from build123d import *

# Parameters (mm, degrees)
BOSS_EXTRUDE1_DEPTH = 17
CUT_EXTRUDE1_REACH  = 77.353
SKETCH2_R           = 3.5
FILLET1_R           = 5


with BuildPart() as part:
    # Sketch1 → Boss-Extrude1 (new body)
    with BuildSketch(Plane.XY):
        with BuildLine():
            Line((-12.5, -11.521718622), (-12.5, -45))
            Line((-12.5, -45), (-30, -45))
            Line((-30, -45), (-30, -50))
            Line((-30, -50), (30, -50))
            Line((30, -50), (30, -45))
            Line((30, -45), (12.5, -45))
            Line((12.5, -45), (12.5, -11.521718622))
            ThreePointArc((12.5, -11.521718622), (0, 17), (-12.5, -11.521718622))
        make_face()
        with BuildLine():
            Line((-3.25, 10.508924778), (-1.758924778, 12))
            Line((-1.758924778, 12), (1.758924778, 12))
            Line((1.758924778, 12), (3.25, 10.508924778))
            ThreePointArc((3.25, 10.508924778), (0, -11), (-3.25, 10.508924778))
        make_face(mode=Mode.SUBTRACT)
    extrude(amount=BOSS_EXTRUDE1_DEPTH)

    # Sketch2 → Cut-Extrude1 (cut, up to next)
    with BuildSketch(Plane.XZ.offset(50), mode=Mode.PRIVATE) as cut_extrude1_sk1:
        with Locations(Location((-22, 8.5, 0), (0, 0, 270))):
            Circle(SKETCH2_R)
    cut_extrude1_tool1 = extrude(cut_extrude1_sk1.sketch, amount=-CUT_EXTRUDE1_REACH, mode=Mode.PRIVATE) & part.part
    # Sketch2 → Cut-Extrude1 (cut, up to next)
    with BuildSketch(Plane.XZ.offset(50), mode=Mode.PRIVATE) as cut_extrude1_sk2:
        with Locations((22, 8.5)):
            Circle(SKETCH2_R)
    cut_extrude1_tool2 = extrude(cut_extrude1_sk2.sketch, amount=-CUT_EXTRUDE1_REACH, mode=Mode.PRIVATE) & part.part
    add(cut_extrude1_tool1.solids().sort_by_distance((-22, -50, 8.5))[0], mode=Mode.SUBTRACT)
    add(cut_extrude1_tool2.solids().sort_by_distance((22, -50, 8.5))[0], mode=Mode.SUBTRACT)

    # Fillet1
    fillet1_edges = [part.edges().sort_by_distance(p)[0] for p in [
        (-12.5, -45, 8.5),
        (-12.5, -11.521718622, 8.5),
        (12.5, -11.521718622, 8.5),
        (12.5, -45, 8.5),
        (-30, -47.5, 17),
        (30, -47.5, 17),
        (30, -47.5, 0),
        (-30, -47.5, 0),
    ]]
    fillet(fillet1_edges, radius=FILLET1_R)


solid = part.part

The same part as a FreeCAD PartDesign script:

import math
import FreeCAD as App
import Part
import Sketcher


def edges_at(feature, points):
    """Names of the edges that pass closest to the given points."""
    edges = feature.Shape.Edges
    near = lambda p: min(range(len(edges)), key=lambda i: edges[i].distToShape(Part.Vertex(*p))[0])
    return sorted({f"Edge{near(p) + 1}" for p in points})

doc = App.newDocument("Part")
body = doc.addObject("PartDesign::Body", "Body")

# Sketch on XY plane
sketch1 = doc.addObject("Sketcher::SketchObject", "Sketch")
body.addObject(sketch1)
sketch1.AttachmentSupport = (doc.XY_Plane, [""])
sketch1.MapMode = "FlatFace"
sketch1.addGeometry([
    Part.LineSegment(App.Vector(-12.5, -11.5, 0), App.Vector(-12.5, -45, 0)),  # 0
    Part.LineSegment(App.Vector(-12.5, -45, 0), App.Vector(-30, -45, 0)),  # 1
    Part.LineSegment(App.Vector(-30, -45, 0), App.Vector(-30, -50, 0)),  # 2
    Part.LineSegment(App.Vector(-30, -50, 0), App.Vector(30, -50, 0)),  # 3
    Part.LineSegment(App.Vector(30, -50, 0), App.Vector(30, -45, 0)),  # 4
    Part.LineSegment(App.Vector(30, -45, 0), App.Vector(12.5, -45, 0)),  # 5
    Part.LineSegment(App.Vector(12.5, -45, 0), App.Vector(12.5, -11.5, 0)),  # 6
    Part.ArcOfCircle(Part.Circle(App.Vector(0, 0, 0), App.Vector(0, 0, 1), 17), math.radians(-43), math.radians(223)),  # 7
    Part.ArcOfCircle(Part.Circle(App.Vector(0, 0, 0), App.Vector(0, 0, 1), 11), math.radians(107), math.radians(433)),  # 8
    Part.LineSegment(App.Vector(-3.2, 10.5, 0), App.Vector(-1.8, 12, 0)),  # 9
    Part.LineSegment(App.Vector(-1.8, 12, 0), App.Vector(1.8, 12, 0)),  # 10
    Part.LineSegment(App.Vector(1.8, 12, 0), App.Vector(3.2, 10.5, 0)),  # 11
], False)
sketch1.addConstraint([
    Sketcher.Constraint("Coincident", 0, 2, 1, 1),
    Sketcher.Constraint("Coincident", 1, 2, 2, 1),
    Sketcher.Constraint("Coincident", 2, 2, 3, 1),
    Sketcher.Constraint("Coincident", 3, 2, 4, 1),
    Sketcher.Constraint("Coincident", 4, 2, 5, 1),
    Sketcher.Constraint("Coincident", 5, 2, 6, 1),
    Sketcher.Constraint("Coincident", 6, 2, 7, 1),
    Sketcher.Constraint("Coincident", 7, 2, 0, 1),
    Sketcher.Constraint("Coincident", 8, 1, 9, 1),
    Sketcher.Constraint("Coincident", 9, 2, 10, 1),
    Sketcher.Constraint("Coincident", 10, 2, 11, 1),
    Sketcher.Constraint("Coincident", 11, 2, 8, 2),
    Sketcher.Constraint("Vertical", 0),
    Sketcher.Constraint("Horizontal", 1),
    Sketcher.Constraint("Vertical", 2),
    Sketcher.Constraint("Horizontal", 3),
    Sketcher.Constraint("Vertical", 4),
    Sketcher.Constraint("Horizontal", 5),
    Sketcher.Constraint("Vertical", 6),
    Sketcher.Constraint("Horizontal", 10),
    Sketcher.Constraint("Coincident", 7, 3, -1, 1),
    Sketcher.Constraint("Coincident", 8, 3, -1, 1),
    Sketcher.Constraint("Symmetric", 1, 2, 4, 2, -2),
    Sketcher.Constraint("Perpendicular", 9, 11),
    Sketcher.Constraint("Horizontal", 6, 2, 7, 2),
    Sketcher.Constraint("Horizontal", 8, 1, 11, 2),
    Sketcher.Constraint("Equal", 9, 11),
    Sketcher.Constraint("Radius", 7, 17.0),
    Sketcher.Constraint("Radius", 8, 11.0),
    Sketcher.Constraint("DistanceX", 3, 1, 3, 2, 60.0),
    Sketcher.Constraint("DistanceY", 2, 2, 2, 1, 5.0),
    Sketcher.Constraint("DistanceX", 1, 2, 1, 1, 17.5),
    Sketcher.Constraint("DistanceY", 0, 2, -1, 1, 45.0),
    Sketcher.Constraint("DistanceY", -1, 1, 9, 2, 12.0),
    Sketcher.Constraint("DistanceX", 8, 1, 11, 2, 6.5),
])
pad1 = doc.addObject("PartDesign::Pad", "Pad")
body.addObject(pad1)
pad1.Profile = sketch1
pad1.Length = 17

# Sketch on XZ plane
sketch2 = doc.addObject("Sketcher::SketchObject", "Sketch001")
body.addObject(sketch2)
sketch2.AttachmentSupport = (doc.XZ_Plane, [""])
sketch2.MapMode = "FlatFace"
sketch2.AttachmentOffset = App.Placement(App.Vector(0, 0, 50), App.Rotation())
sketch2.addGeometry(Part.Circle(App.Vector(-22, 8.5, 0), App.Vector(0, 0, 1), 3.5), False)
sketch2.addConstraint([
    Sketcher.Constraint("Diameter", 0, 7.0),
    Sketcher.Constraint("DistanceX", 0, 3, -1, 1, 22.0),
    Sketcher.Constraint("DistanceY", -1, 1, 0, 3, 8.5),
])
pocket1 = doc.addObject("PartDesign::Pocket", "Pocket")
body.addObject(pocket1)
pocket1.Profile = sketch2
pocket1.Type = "UpToFirst"

# Sketch on XZ plane
sketch3 = doc.addObject("Sketcher::SketchObject", "Sketch002")
body.addObject(sketch3)
sketch3.AttachmentSupport = (doc.XZ_Plane, [""])
sketch3.MapMode = "FlatFace"
sketch3.AttachmentOffset = App.Placement(App.Vector(0, 0, 50), App.Rotation())
sketch3.addGeometry(Part.Circle(App.Vector(22, 8.5, 0), App.Vector(0, 0, 1), 3.5), False)
sketch3.addConstraint([
    Sketcher.Constraint("Diameter", 0, 7.0),
    Sketcher.Constraint("DistanceX", -1, 1, 0, 3, 22.0),
    Sketcher.Constraint("DistanceY", -1, 1, 0, 3, 8.5),
])
pocket2 = doc.addObject("PartDesign::Pocket", "Pocket001")
body.addObject(pocket2)
pocket2.Profile = sketch3
pocket2.Type = "UpToFirst"
doc.recompute()

fillet = doc.addObject("PartDesign::Fillet", "Fillet")
body.addObject(fillet)
fillet.Base = (pocket2, edges_at(pocket2, [
    (-12.5, -45, 8.5),
    (-12.5, -11.522, 8.5),
    (12.5, -11.522, 8.5),
    (12.5, -45, 8.5),
    (-30, -47.5, 17),
    (30, -47.5, 17),
    (30, -47.5, 0),
    (-30, -47.5, 0),
]))
fillet.Radius = 5

doc.recompute()
